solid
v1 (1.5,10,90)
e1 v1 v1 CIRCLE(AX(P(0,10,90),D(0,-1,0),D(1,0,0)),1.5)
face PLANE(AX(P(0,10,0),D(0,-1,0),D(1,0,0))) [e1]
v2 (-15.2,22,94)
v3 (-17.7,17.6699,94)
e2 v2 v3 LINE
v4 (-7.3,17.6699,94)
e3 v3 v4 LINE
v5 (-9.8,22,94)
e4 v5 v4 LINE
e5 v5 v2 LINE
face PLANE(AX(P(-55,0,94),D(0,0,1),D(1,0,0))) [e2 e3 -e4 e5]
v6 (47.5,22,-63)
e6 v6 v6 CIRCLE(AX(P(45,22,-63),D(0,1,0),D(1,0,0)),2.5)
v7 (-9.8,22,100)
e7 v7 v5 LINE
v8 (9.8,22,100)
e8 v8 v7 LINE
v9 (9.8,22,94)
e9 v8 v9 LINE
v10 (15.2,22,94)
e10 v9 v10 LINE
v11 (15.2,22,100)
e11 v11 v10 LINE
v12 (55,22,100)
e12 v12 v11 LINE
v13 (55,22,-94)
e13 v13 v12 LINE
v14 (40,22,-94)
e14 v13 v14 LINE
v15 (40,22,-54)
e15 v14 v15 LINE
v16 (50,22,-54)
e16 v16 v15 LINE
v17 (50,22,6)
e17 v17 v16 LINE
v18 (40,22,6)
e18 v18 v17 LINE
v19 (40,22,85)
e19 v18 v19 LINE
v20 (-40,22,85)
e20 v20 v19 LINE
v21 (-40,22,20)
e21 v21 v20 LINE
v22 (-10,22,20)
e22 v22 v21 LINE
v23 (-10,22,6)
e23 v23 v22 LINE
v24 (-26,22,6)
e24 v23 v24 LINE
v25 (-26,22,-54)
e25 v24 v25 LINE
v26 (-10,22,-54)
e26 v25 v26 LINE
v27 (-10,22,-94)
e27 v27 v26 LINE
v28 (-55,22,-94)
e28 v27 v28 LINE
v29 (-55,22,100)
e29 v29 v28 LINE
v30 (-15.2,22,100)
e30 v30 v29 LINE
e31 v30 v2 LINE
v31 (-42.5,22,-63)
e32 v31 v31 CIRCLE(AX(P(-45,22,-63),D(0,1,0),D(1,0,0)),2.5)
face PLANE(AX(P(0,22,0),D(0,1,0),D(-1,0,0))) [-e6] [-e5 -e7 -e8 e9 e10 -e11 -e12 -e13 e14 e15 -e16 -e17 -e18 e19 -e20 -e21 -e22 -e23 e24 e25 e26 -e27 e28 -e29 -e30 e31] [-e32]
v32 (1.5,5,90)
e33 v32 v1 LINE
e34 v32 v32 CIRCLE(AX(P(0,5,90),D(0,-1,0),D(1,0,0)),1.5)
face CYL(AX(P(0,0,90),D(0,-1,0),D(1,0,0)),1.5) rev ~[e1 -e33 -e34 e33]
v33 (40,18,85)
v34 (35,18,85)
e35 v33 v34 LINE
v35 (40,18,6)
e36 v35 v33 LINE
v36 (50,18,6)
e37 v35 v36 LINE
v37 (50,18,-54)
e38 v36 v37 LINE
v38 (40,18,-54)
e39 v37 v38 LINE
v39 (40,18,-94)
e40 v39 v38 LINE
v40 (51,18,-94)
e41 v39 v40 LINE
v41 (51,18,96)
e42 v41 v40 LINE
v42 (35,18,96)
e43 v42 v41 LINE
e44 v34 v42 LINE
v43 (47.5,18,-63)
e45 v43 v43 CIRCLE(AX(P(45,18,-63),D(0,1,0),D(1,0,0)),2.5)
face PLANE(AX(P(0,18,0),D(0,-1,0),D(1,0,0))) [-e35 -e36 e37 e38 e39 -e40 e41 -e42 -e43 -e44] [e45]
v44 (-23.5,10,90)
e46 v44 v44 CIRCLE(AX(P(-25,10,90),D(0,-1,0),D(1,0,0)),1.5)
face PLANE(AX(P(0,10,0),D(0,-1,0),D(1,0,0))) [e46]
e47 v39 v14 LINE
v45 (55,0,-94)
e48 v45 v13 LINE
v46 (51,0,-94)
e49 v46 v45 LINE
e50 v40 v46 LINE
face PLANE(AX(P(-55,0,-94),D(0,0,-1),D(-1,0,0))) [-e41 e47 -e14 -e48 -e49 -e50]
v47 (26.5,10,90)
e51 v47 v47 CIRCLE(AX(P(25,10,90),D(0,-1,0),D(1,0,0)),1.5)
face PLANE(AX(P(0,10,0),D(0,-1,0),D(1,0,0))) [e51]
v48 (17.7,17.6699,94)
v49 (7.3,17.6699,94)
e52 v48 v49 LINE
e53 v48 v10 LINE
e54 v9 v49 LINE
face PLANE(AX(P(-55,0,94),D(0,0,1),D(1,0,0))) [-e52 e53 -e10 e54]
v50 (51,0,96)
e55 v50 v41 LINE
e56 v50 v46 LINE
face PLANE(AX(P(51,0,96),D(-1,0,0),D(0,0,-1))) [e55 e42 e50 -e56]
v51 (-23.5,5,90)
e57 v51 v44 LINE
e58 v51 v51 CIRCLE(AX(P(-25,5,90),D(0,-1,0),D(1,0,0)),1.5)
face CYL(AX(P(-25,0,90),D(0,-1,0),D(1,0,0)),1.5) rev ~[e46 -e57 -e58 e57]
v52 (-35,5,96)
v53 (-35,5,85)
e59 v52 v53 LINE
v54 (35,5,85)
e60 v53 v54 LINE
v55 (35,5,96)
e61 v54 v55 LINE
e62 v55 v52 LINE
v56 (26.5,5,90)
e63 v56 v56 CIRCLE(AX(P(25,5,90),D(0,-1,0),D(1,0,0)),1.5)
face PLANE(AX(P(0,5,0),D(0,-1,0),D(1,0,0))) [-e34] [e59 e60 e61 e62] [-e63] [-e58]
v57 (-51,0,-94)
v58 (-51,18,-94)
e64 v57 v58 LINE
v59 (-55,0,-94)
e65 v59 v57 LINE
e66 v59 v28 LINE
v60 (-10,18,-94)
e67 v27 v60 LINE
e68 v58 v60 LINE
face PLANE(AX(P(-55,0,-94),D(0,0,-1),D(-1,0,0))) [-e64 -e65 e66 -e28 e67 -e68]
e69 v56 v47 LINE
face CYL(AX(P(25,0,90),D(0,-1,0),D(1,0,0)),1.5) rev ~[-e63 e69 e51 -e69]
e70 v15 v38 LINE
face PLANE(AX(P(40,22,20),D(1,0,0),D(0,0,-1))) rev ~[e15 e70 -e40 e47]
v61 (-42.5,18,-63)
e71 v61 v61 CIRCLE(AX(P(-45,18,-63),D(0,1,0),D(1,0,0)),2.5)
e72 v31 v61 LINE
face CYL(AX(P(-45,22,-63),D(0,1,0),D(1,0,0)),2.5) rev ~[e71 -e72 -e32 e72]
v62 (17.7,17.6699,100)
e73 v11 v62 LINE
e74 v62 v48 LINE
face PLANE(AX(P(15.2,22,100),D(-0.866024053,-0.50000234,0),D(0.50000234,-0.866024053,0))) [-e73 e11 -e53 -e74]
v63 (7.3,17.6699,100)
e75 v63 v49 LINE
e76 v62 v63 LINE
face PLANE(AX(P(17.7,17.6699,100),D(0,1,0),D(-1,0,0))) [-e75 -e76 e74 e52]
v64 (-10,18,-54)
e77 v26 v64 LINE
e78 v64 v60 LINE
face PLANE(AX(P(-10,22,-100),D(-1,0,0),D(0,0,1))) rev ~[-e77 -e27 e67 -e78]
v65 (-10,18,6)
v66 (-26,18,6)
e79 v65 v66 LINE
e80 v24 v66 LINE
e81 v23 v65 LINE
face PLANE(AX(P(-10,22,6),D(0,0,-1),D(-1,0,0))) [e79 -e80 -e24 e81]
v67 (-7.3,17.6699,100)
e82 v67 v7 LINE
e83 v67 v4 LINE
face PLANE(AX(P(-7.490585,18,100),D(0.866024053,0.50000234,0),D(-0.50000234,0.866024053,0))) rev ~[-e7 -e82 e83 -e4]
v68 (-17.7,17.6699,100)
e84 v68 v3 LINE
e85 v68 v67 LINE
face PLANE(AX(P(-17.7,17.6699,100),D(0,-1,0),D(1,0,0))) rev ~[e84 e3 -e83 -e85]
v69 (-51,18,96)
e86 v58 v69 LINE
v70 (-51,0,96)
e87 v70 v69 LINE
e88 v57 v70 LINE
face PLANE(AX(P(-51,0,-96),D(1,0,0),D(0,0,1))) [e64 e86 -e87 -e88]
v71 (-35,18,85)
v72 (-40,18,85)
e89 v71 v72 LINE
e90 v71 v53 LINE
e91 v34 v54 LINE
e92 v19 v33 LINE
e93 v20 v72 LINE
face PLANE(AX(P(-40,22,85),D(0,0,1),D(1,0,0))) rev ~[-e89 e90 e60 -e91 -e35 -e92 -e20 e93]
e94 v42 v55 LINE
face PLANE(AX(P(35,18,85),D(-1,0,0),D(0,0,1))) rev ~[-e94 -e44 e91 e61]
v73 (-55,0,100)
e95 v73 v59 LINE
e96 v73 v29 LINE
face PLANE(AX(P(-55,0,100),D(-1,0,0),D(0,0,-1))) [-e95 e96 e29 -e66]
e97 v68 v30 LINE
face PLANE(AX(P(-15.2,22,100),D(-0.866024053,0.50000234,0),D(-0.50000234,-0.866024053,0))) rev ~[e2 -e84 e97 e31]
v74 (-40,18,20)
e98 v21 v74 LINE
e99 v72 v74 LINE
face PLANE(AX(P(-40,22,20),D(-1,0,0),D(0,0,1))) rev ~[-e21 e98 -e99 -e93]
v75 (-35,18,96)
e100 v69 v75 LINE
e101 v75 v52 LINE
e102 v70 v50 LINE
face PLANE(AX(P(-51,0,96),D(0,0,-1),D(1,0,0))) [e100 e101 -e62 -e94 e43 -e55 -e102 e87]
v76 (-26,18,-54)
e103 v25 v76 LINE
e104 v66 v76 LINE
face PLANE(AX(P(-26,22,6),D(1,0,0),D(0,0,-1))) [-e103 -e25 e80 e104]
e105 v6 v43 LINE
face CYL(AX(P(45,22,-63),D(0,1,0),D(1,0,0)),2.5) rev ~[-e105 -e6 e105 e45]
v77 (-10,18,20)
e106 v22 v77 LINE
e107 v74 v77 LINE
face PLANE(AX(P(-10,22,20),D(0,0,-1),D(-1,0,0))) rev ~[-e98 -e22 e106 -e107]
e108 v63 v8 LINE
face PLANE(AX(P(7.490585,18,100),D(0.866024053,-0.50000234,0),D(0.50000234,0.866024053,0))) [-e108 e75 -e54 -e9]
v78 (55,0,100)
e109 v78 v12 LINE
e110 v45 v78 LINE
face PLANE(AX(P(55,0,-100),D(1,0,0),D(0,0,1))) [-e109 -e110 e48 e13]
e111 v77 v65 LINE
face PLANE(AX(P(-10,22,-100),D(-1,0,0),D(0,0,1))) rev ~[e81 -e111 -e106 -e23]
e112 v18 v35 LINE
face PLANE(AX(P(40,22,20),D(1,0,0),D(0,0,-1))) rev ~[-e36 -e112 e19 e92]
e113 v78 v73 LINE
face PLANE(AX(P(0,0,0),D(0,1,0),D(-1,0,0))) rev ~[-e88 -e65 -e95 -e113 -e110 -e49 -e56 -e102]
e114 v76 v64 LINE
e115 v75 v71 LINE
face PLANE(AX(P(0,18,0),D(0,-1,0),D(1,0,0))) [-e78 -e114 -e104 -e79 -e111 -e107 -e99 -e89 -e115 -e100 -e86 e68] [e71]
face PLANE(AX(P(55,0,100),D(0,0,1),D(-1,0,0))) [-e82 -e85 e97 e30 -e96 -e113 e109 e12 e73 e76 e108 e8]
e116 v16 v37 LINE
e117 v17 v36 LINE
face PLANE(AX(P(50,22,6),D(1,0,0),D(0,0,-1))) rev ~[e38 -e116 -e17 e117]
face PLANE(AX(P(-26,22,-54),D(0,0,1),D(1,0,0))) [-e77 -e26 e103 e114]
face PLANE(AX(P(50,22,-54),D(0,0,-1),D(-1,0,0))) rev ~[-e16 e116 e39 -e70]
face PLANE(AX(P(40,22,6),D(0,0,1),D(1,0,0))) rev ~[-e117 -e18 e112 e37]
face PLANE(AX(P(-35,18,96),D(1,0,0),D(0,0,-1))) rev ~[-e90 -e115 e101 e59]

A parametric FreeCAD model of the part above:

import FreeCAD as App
import Part
import Sketcher
from FreeCAD import Vector
Q = App.Units.Quantity

doc = App.newDocument("Part")
params = doc.addObject("Spreadsheet::Sheet", "Params")
for row, (alias, value) in enumerate([
    ("sketch1_width", "110 mm"),
    ("sketch1_height", "200 mm"),
    ("pad1_length", "22 mm"),
    ("sketch2_width", "102 mm"),
    ("sketch2_height", "192 mm"),
    ("pocket1_length", "18 mm"),
    ("sketch3_width", "50 mm"),
    ("sketch3_height", "120 mm"),
    ("pocket2_length", "22 mm"),
    ("sketch4_width", "80 mm"),
    ("sketch4_height", "65 mm"),
    ("pocket3_length", "13 mm"),
    ("sketch5_diameter", "5 mm"),
    ("pocket4_length", "10 mm"),
    ("sketch6_width", "70 mm"),
    ("sketch6_height", "11 mm"),
    ("pad2_length", "13 mm"),
    ("sketch7_length", "5 mm"),
    ("sketch7_width", "10.4 mm"),
    ("pocket5_length", "6 mm"),
    ("sketch8_diameter", "3 mm"),
    ("pocket6_length", "10 mm"),
    ("sketch9_width", "45 mm"),
    ("sketch9_width2", "15 mm"),
    ("sketch9_height", "22 mm"),
    ("pocket7_length", "6 mm"),
    ("sketch10_width", "16 mm"),
    ("sketch10_width2", "10 mm"),
    ("sketch10_height", "60 mm"),
    ("pocket8_length", "4 mm"),
], start=1):
    params.set(f"A{row}", alias)
    params.set(f"B{row}", "=" + value)
    params.setAlias(f"B{row}", alias)

body = doc.addObject("PartDesign::Body", "Body")

# Sketch on XZ plane
sketch1 = body.newObject("Sketcher::SketchObject", "Sketch")
sketch1.AttachmentSupport = (doc.getObject("XZ_Plane"), [""])
sketch1.MapMode = "FlatFace"
sketch1.addGeometry(Part.LineSegment(Vector(-55, 100, 0), Vector(55, 100, 0)), False)
sketch1.addGeometry(Part.LineSegment(Vector(55, 100, 0), Vector(55, -100, 0)), False)
sketch1.addGeometry(Part.LineSegment(Vector(55, -100, 0), Vector(-55, -100, 0)), False)
sketch1.addGeometry(Part.LineSegment(Vector(-55, -100, 0), Vector(-55, 100, 0)), False)
sketch1.addConstraint(Sketcher.Constraint("Coincident", 0, 2, 1, 1))
sketch1.addConstraint(Sketcher.Constraint("Coincident", 1, 2, 2, 1))
sketch1.addConstraint(Sketcher.Constraint("Coincident", 2, 2, 3, 1))
sketch1.addConstraint(Sketcher.Constraint("Coincident", 3, 2, 0, 1))
sketch1.addConstraint(Sketcher.Constraint("Horizontal", 0))
sketch1.addConstraint(Sketcher.Constraint("Vertical", 1))
sketch1.addConstraint(Sketcher.Constraint("Horizontal", 2))
sketch1.addConstraint(Sketcher.Constraint("Vertical", 3))
sketch1.addConstraint(Sketcher.Constraint("Symmetric", 0, 2, 2, 2, -1, 1))
sketch1.addConstraint(Sketcher.Constraint("DistanceX", 0, 1, 0, 2, Q("110 mm")))
sketch1.addConstraint(Sketcher.Constraint("DistanceY", 1, 2, 1, 1, Q("200 mm")))
sketch1.setExpression("Constraints[9]", "Params.sketch1_width")
sketch1.setExpression("Constraints[10]", "Params.sketch1_height")
pad1 = body.newObject("PartDesign::Pad", "Pad")
pad1.Profile = sketch1
pad1.setExpression("Length", "Params.pad1_length")
pad1.Reversed = True

# Sketch on XZ plane
sketch2 = body.newObject("Sketcher::SketchObject", "Sketch001")
sketch2.AttachmentSupport = (doc.getObject("XZ_Plane"), [""])
sketch2.MapMode = "FlatFace"
sketch2.addGeometry(Part.LineSegment(Vector(51, 96, 0), Vector(-51, 96, 0)), False)
sketch2.addGeometry(Part.LineSegment(Vector(-51, 96, 0), Vector(-51, -96, 0)), False)
sketch2.addGeometry(Part.LineSegment(Vector(-51, -96, 0), Vector(51, -96, 0)), False)
sketch2.addGeometry(Part.LineSegment(Vector(51, -96, 0), Vector(51, 96, 0)), False)
sketch2.addConstraint(Sketcher.Constraint("Coincident", 0, 2, 1, 1))
sketch2.addConstraint(Sketcher.Constraint("Coincident", 1, 2, 2, 1))
sketch2.addConstraint(Sketcher.Constraint("Coincident", 2, 2, 3, 1))
sketch2.addConstraint(Sketcher.Constraint("Coincident", 3, 2, 0, 1))
sketch2.addConstraint(Sketcher.Constraint("Horizontal", 0))
sketch2.addConstraint(Sketcher.Constraint("Vertical", 1))
sketch2.addConstraint(Sketcher.Constraint("Horizontal", 2))
sketch2.addConstraint(Sketcher.Constraint("Vertical", 3))
sketch2.addConstraint(Sketcher.Constraint("Symmetric", 0, 2, 2, 2, -1, 1))
sketch2.addConstraint(Sketcher.Constraint("DistanceX", 0, 2, 0, 1, Q("102 mm")))
sketch2.addConstraint(Sketcher.Constraint("DistanceY", 1, 2, 1, 1, Q("192 mm")))
sketch2.setExpression("Constraints[9]", "Params.sketch2_width")
sketch2.setExpression("Constraints[10]", "Params.sketch2_height")
pocket1 = body.newObject("PartDesign::Pocket", "Pocket")
pocket1.Profile = sketch2
pocket1.setExpression("Length", "Params.pocket1_length")

# Sketch on XZ plane
sketch3 = body.newObject("Sketcher::SketchObject", "Sketch002")
sketch3.AttachmentSupport = (doc.getObject("XZ_Plane"), [""])
sketch3.MapMode = "FlatFace"
sketch3.AttachmentOffset = App.Placement(Vector(0, 0, -22), App.Rotation())
sketch3.addGeometry(Part.LineSegment(Vector(40, 20, 0), Vector(40, -100, 0)), False)
sketch3.addGeometry(Part.LineSegment(Vector(40, -100, 0), Vector(-10, -100, 0)), False)
sketch3.addGeometry(Part.LineSegment(Vector(-10, -100, 0), Vector(-10, 20, 0)), False)
sketch3.addGeometry(Part.LineSegment(Vector(-10, 20, 0), Vector(40, 20, 0)), False)
sketch3.addConstraint(Sketcher.Constraint("Coincident", 0, 2, 1, 1))
sketch3.addConstraint(Sketcher.Constraint("Coincident", 1, 2, 2, 1))
sketch3.addConstraint(Sketcher.Constraint("Coincident", 2, 2, 3, 1))
sketch3.addConstraint(Sketcher.Constraint("Coincident", 3, 2, 0, 1))
sketch3.addConstraint(Sketcher.Constraint("Vertical", 0))
sketch3.addConstraint(Sketcher.Constraint("Horizontal", 1))
sketch3.addConstraint(Sketcher.Constraint("Vertical", 2))
sketch3.addConstraint(Sketcher.Constraint("Horizontal", 3))
sketch3.addConstraint(Sketcher.Constraint("DistanceX", 1, 2, 1, 1, Q("50 mm")))
sketch3.addConstraint(Sketcher.Constraint("DistanceY", 0, 2, 0, 1, Q("120 mm")))
sketch3.addConstraint(Sketcher.Constraint("DistanceX", -1, 1, 0, 2, Q("40 mm")))
sketch3.addConstraint(Sketcher.Constraint("DistanceY", 0, 2, -1, 1, Q("100 mm")))
sketch3.setExpression("Constraints[8]", "Params.sketch3_width")
sketch3.setExpression("Constraints[9]", "Params.sketch3_height")
pocket2 = body.newObject("PartDesign::Pocket", "Pocket001")
pocket2.Profile = sketch3
pocket2.setExpression("Length", "Params.pocket2_length")
pocket2.Reversed = True

# Sketch on XZ plane
sketch4 = body.newObject("Sketcher::SketchObject", "Sketch003")
sketch4.AttachmentSupport = (doc.getObject("XZ_Plane"), [""])
sketch4.MapMode = "FlatFace"
sketch4.AttachmentOffset = App.Placement(Vector(0, 0, -22), App.Rotation())
sketch4.addGeometry(Part.LineSegment(Vector(40, 85, 0), Vector(40, 20, 0)), False)
sketch4.addGeometry(Part.LineSegment(Vector(40, 20, 0), Vector(-40, 20, 0)), False)
sketch4.addGeometry(Part.LineSegment(Vector(-40, 20, 0), Vector(-40, 85, 0)), False)
sketch4.addGeometry(Part.LineSegment(Vector(-40, 85, 0), Vector(40, 85, 0)), False)
sketch4.addConstraint(Sketcher.Constraint("Coincident", 0, 2, 1, 1))
sketch4.addConstraint(Sketcher.Constraint("Coincident", 1, 2, 2, 1))
sketch4.addConstraint(Sketcher.Constraint("Coincident", 2, 2, 3, 1))
sketch4.addConstraint(Sketcher.Constraint("Coincident", 3, 2, 0, 1))
sketch4.addConstraint(Sketcher.Constraint("Vertical", 0))
sketch4.addConstraint(Sketcher.Constraint("Horizontal", 1))
sketch4.addConstraint(Sketcher.Constraint("Vertical", 2))
sketch4.addConstraint(Sketcher.Constraint("Horizontal", 3))
sketch4.addConstraint(Sketcher.Constraint("DistanceX", 1, 2, 1, 1, Q("80 mm")))
sketch4.addConstraint(Sketcher.Constraint("DistanceY", 0, 2, 0, 1, Q("65 mm")))
sketch4.addConstraint(Sketcher.Constraint("DistanceX", -1, 1, 0, 2, Q("40 mm")))
sketch4.addConstraint(Sketcher.Constraint("DistanceY", -1, 1, 0, 2, Q("20 mm")))
sketch4.setExpression("Constraints[8]", "Params.sketch4_width")
sketch4.setExpression("Constraints[9]", "Params.sketch4_height")
pocket3 = body.newObject("PartDesign::Pocket", "Pocket002")
pocket3.Profile = sketch4
pocket3.setExpression("Length", "Params.pocket3_length")
pocket3.Reversed = True

# Sketch on XZ plane
sketch5 = body.newObject("Sketcher::SketchObject", "Sketch004")
sketch5.AttachmentSupport = (doc.getObject("XZ_Plane"), [""])
sketch5.MapMode = "FlatFace"
sketch5.AttachmentOffset = App.Placement(Vector(0, 0, -22), App.Rotation())
sketch5.addGeometry(Part.Circle(Vector(-45, -63, 0), Vector(0, 0, 1), 2.5), False)
sketch5.addGeometry(Part.Circle(Vector(45, -63, 0), Vector(0, 0, 1), 2.5), False)
sketch5.addConstraint(Sketcher.Constraint("Equal", 0, 1))
sketch5.addConstraint(Sketcher.Constraint("Symmetric", 0, 3, 1, 3, -2))
sketch5.addConstraint(Sketcher.Constraint("Diameter", 0, Q("5 mm")))
sketch5.addConstraint(Sketcher.Constraint("DistanceX", 0, 3, 1, 3, Q("90 mm")))
sketch5.addConstraint(Sketcher.Constraint("DistanceY", 0, 3, -1, 1, Q("63 mm")))
sketch5.setExpression("Constraints[2]", "Params.sketch5_diameter")
pocket4 = body.newObject("PartDesign::Pocket", "Pocket003")
pocket4.Profile = sketch5
pocket4.setExpression("Length", "Params.pocket4_length")
pocket4.Reversed = True

# Sketch on XZ plane
sketch6 = body.newObject("Sketcher::SketchObject", "Sketch005")
sketch6.AttachmentSupport = (doc.getObject("XZ_Plane"), [""])
sketch6.MapMode = "FlatFace"
sketch6.AttachmentOffset = App.Placement(Vector(0, 0, -18), App.Rotation())
sketch6.addGeometry(Part.LineSegment(Vector(35, 85, 0), Vector(35, 96, 0)), False)
sketch6.addGeometry(Part.LineSegment(Vector(35, 96, 0), Vector(-35, 96, 0)), False)
sketch6.addGeometry(Part.LineSegment(Vector(-35, 96, 0), Vector(-35, 85, 0)), False)
sketch6.addGeometry(Part.LineSegment(Vector(-35, 85, 0), Vector(35, 85, 0)), False)
sketch6.addConstraint(Sketcher.Constraint("Coincident", 0, 2, 1, 1))
sketch6.addConstraint(Sketcher.Constraint("Coincident", 1, 2, 2, 1))
sketch6.addConstraint(Sketcher.Constraint("Coincident", 2, 2, 3, 1))
sketch6.addConstraint(Sketcher.Constraint("Coincident", 3, 2, 0, 1))
sketch6.addConstraint(Sketcher.Constraint("Vertical", 0))
sketch6.addConstraint(Sketcher.Constraint("Horizontal", 1))
sketch6.addConstraint(Sketcher.Constraint("Vertical", 2))
sketch6.addConstraint(Sketcher.Constraint("Horizontal", 3))
sketch6.addConstraint(Sketcher.Constraint("DistanceX", 1, 2, 1, 1, Q("70 mm")))
sketch6.addConstraint(Sketcher.Constraint("DistanceY", 0, 1, 0, 2, Q("11 mm")))
sketch6.addConstraint(Sketcher.Constraint("DistanceX", -1, 1, 0, 2, Q("35 mm")))
sketch6.addConstraint(Sketcher.Constraint("DistanceY", -1, 1, 0, 2, Q("96 mm")))
sketch6.setExpression("Constraints[8]", "Params.sketch6_width")
sketch6.setExpression("Constraints[9]", "Params.sketch6_height")
pad2 = body.newObject("PartDesign::Pad", "Pad001")
pad2.Profile = sketch6
pad2.setExpression("Length", "Params.pad2_length")

# Sketch on XY plane
sketch7 = body.newObject("Sketcher::SketchObject", "Sketch006")
sketch7.AttachmentSupport = (doc.getObject("XY_Plane"), [""])
sketch7.MapMode = "FlatFace"
sketch7.AttachmentOffset = App.Placement(Vector(0, 0, 100), App.Rotation())
sketch7.addGeometry(Part.LineSegment(Vector(-15.2, 22, 0), Vector(-17.7, 17.6699, 0)), False)
sketch7.addGeometry(Part.LineSegment(Vector(-17.7, 17.6699, 0), Vector(-7.3, 17.6699, 0)), False)
sketch7.addGeometry(Part.LineSegment(Vector(-7.3, 17.6699, 0), Vector(-9.8, 22, 0)), False)
sketch7.addGeometry(Part.LineSegment(Vector(-9.8, 22, 0), Vector(-15.2, 22, 0)), False)
sketch7.addGeometry(Part.LineSegment(Vector(15.2, 22, 0), Vector(9.8, 22, 0)), False)
sketch7.addGeometry(Part.LineSegment(Vector(9.8, 22, 0), Vector(7.3, 17.6699, 0)), False)
sketch7.addGeometry(Part.LineSegment(Vector(7.3, 17.6699, 0), Vector(17.7, 17.6699, 0)), False)
sketch7.addGeometry(Part.LineSegment(Vector(17.7, 17.6699, 0), Vector(15.2, 22, 0)), False)
sketch7.addConstraint(Sketcher.Constraint("Coincident", 0, 2, 1, 1))
sketch7.addConstraint(Sketcher.Constraint("Coincident", 1, 2, 2, 1))
sketch7.addConstraint(Sketcher.Constraint("Coincident", 2, 2, 3, 1))
sketch7.addConstraint(Sketcher.Constraint("Coincident", 3, 2, 0, 1))
sketch7.addConstraint(Sketcher.Constraint("Coincident", 4, 2, 5, 1))
sketch7.addConstraint(Sketcher.Constraint("Coincident", 5, 2, 6, 1))
sketch7.addConstraint(Sketcher.Constraint("Coincident", 6, 2, 7, 1))
sketch7.addConstraint(Sketcher.Constraint("Coincident", 7, 2, 4, 1))
sketch7.addConstraint(Sketcher.Constraint("Horizontal", 1))
sketch7.addConstraint(Sketcher.Constraint("Horizontal", 3))
sketch7.addConstraint(Sketcher.Constraint("Horizontal", 4))
sketch7.addConstraint(Sketcher.Constraint("Horizontal", 6))
sketch7.addConstraint(Sketcher.Constraint("Symmetric", 2, 2, 4, 2, -2))
sketch7.addConstraint(Sketcher.Constraint("Symmetric", 1, 2, 5, 2, -2))
sketch7.addConstraint(Sketcher.Constraint("Parallel", 0, 5))
sketch7.addConstraint(Sketcher.Constraint("Parallel", 2, 7))
sketch7.addConstraint(Sketcher.Constraint("Equal", 3, 4))
sketch7.addConstraint(Sketcher.Constraint("Angle", 0, Q("-120.0002 deg")))
sketch7.addConstraint(Sketcher.Constraint("Distance", 0, Q("5 mm")))
sketch7.addConstraint(Sketcher.Constraint("DistanceX", 1, 1, 1, 2, Q("10.4 mm")))
sketch7.addConstraint(Sketcher.Constraint("DistanceY", -1, 1, 2, 2, Q("22 mm")))
sketch7.addConstraint(Sketcher.Constraint("DistanceX", 3, 2, 4, 2, Q("25 mm")))
sketch7.setExpression("Constraints[18]", "Params.sketch7_length")
sketch7.setExpression("Constraints[19]", "Params.sketch7_width")
pocket5 = body.newObject("PartDesign::Pocket", "Pocket004")
pocket5.Profile = sketch7
pocket5.setExpression("Length", "Params.pocket5_length")

# Sketch on XZ plane
sketch8 = body.newObject("Sketcher::SketchObject", "Sketch007")
sketch8.AttachmentSupport = (doc.getObject("XZ_Plane"), [""])
sketch8.MapMode = "FlatFace"
sketch8.addGeometry(Part.Circle(Vector(25, 90, 0), Vector(0, 0, 1), 1.5), False)
sketch8.addGeometry(Part.Circle(Vector(-25, 90, 0), Vector(0, 0, 1), 1.5), False)
sketch8.addGeometry(Part.Circle(Vector(0, 90, 0), Vector(0, 0, 1), 1.5), False)
sketch8.addConstraint(Sketcher.Constraint("Equal", 0, 1))
sketch8.addConstraint(Sketcher.Constraint("Equal", 1, 2))
sketch8.addConstraint(Sketcher.Constraint("Symmetric", 0, 3, 1, 3, -2))
sketch8.addConstraint(Sketcher.Constraint("PointOnObject", 2, 3, -2))
sketch8.addConstraint(Sketcher.Constraint("Horizontal", 1, 3, 2, 3))
sketch8.addConstraint(Sketcher.Constraint("Diameter", 0, Q("3 mm")))
sketch8.addConstraint(Sketcher.Constraint("DistanceX", -1, 1, 0, 3, Q("25 mm")))
sketch8.addConstraint(Sketcher.Constraint("DistanceY", -1, 1, 0, 3, Q("90 mm")))
sketch8.setExpression("Constraints[5]", "Params.sketch8_diameter")
pocket6 = body.newObject("PartDesign::Pocket", "Pocket005")
pocket6.Profile = sketch8
pocket6.setExpression("Length", "Params.pocket6_length")

# Sketch on XY plane
sketch9 = body.newObject("Sketcher::SketchObject", "Sketch008")
sketch9.AttachmentSupport = (doc.getObject("XY_Plane"), [""])
sketch9.MapMode = "FlatFace"
sketch9.AttachmentOffset = App.Placement(Vector(0, 0, -100), App.Rotation())
sketch9.addGeometry(Part.LineSegment(Vector(-55, 22, 0), Vector(-10, 22, 0)), False)
sketch9.addGeometry(Part.LineSegment(Vector(-10, 22, 0), Vector(-10, 0, 0)), False)
sketch9.addGeometry(Part.LineSegment(Vector(-10, 0, 0), Vector(-55, 0, 0)), False)
sketch9.addGeometry(Part.LineSegment(Vector(-55, 0, 0), Vector(-55, 22, 0)), False)
sketch9.addGeometry(Part.LineSegment(Vector(40, 0, 0), Vector(40, 22, 0)), False)
sketch9.addGeometry(Part.LineSegment(Vector(40, 22, 0), Vector(55, 22, 0)), False)
sketch9.addGeometry(Part.LineSegment(Vector(55, 22, 0), Vector(55, 0, 0)), False)
sketch9.addGeometry(Part.LineSegment(Vector(55, 0, 0), Vector(40, 0, 0)), False)
sketch9.addConstraint(Sketcher.Constraint("Coincident", 0, 2, 1, 1))
sketch9.addConstraint(Sketcher.Constraint("Coincident", 1, 2, 2, 1))
sketch9.addConstraint(Sketcher.Constraint("Coincident", 2, 2, 3, 1))
sketch9.addConstraint(Sketcher.Constraint("Coincident", 3, 2, 0, 1))
sketch9.addConstraint(Sketcher.Constraint("Coincident", 4, 2, 5, 1))
sketch9.addConstraint(Sketcher.Constraint("Coincident", 5, 2, 6, 1))
sketch9.addConstraint(Sketcher.Constraint("Coincident", 6, 2, 7, 1))
sketch9.addConstraint(Sketcher.Constraint("Coincident", 7, 2, 4, 1))
sketch9.addConstraint(Sketcher.Constraint("Horizontal", 0))
sketch9.addConstraint(Sketcher.Constraint("Vertical", 1))
sketch9.addConstraint(Sketcher.Constraint("Horizontal", 2))
sketch9.addConstraint(Sketcher.Constraint("Vertical", 3))
sketch9.addConstraint(Sketcher.Constraint("Vertical", 4))
sketch9.addConstraint(Sketcher.Constraint("Horizontal", 5))
sketch9.addConstraint(Sketcher.Constraint("Vertical", 6))
sketch9.addConstraint(Sketcher.Constraint("Horizontal", 7))
sketch9.addConstraint(Sketcher.Constraint("Symmetric", 2, 2, 6, 2, -1, 1))
sketch9.addConstraint(Sketcher.Constraint("PointOnObject", 1, 2, -1))
sketch9.addConstraint(Sketcher.Constraint("Horizontal", 3, 2, 4, 2))
sketch9.addConstraint(Sketcher.Constraint("DistanceX", 0, 1, 0, 2, Q("45 mm")))
sketch9.addConstraint(Sketcher.Constraint("DistanceX", 5, 1, 5, 2, Q("15 mm")))
sketch9.addConstraint(Sketcher.Constraint("DistanceY", 1, 2, 1, 1, Q("22 mm")))
sketch9.addConstraint(Sketcher.Constraint("DistanceX", 0, 2, -1, 1, Q("10 mm")))
sketch9.setExpression("Constraints[19]", "Params.sketch9_width")
sketch9.setExpression("Constraints[20]", "Params.sketch9_width2")
sketch9.setExpression("Constraints[21]", "Params.sketch9_height")
pocket7 = body.newObject("PartDesign::Pocket", "Pocket006")
pocket7.Profile = sketch9
pocket7.setExpression("Length", "Params.pocket7_length")
pocket7.Reversed = True

# Sketch on XZ plane
sketch10 = body.newObject("Sketcher::SketchObject", "Sketch009")
sketch10.AttachmentSupport = (doc.getObject("XZ_Plane"), [""])
sketch10.MapMode = "FlatFace"
sketch10.AttachmentOffset = App.Placement(Vector(0, 0, -22), App.Rotation())
sketch10.addGeometry(Part.LineSegment(Vector(-26, 6, 0), Vector(-10, 6, 0)), False)
sketch10.addGeometry(Part.LineSegment(Vector(-10, 6, 0), Vector(-10, -54, 0)), False)
sketch10.addGeometry(Part.LineSegment(Vector(-10, -54, 0), Vector(-26, -54, 0)), False)
sketch10.addGeometry(Part.LineSegment(Vector(-26, -54, 0), Vector(-26, 6, 0)), False)
sketch10.addGeometry(Part.LineSegment(Vector(40, -54, 0), Vector(40, 6, 0)), False)
sketch10.addGeometry(Part.LineSegment(Vector(40, 6, 0), Vector(50, 6, 0)), False)
sketch10.addGeometry(Part.LineSegment(Vector(50, 6, 0), Vector(50, -54, 0)), False)
sketch10.addGeometry(Part.LineSegment(Vector(50, -54, 0), Vector(40, -54, 0)), False)
sketch10.addConstraint(Sketcher.Constraint("Coincident", 0, 2, 1, 1))
sketch10.addConstraint(Sketcher.Constraint("Coincident", 1, 2, 2, 1))
sketch10.addConstraint(Sketcher.Constraint("Coincident", 2, 2, 3, 1))
sketch10.addConstraint(Sketcher.Constraint("Coincident", 3, 2, 0, 1))
sketch10.addConstraint(Sketcher.Constraint("Coincident", 4, 2, 5, 1))
sketch10.addConstraint(Sketcher.Constraint("Coincident", 5, 2, 6, 1))
sketch10.addConstraint(Sketcher.Constraint("Coincident", 6, 2, 7, 1))
sketch10.addConstraint(Sketcher.Constraint("Coincident", 7, 2, 4, 1))
sketch10.addConstraint(Sketcher.Constraint("Horizontal", 0))
sketch10.addConstraint(Sketcher.Constraint("Vertical", 1))
sketch10.addConstraint(Sketcher.Constraint("Horizontal", 2))
sketch10.addConstraint(Sketcher.Constraint("Vertical", 3))
sketch10.addConstraint(Sketcher.Constraint("Vertical", 4))
sketch10.addConstraint(Sketcher.Constraint("Horizontal", 5))
sketch10.addConstraint(Sketcher.Constraint("Vertical", 6))
sketch10.addConstraint(Sketcher.Constraint("Horizontal", 7))
sketch10.addConstraint(Sketcher.Constraint("Horizontal", 3, 2, 4, 2))
sketch10.addConstraint(Sketcher.Constraint("Horizontal", 2, 2, 6, 2))
sketch10.addConstraint(Sketcher.Constraint("DistanceX", 0, 1, 0, 2, Q("16 mm")))
sketch10.addConstraint(Sketcher.Constraint("DistanceX", 5, 1, 5, 2, Q("10 mm")))
sketch10.addConstraint(Sketcher.Constraint("DistanceY", 1, 2, 1, 1, Q("60 mm")))
sketch10.addConstraint(Sketcher.Constraint("DistanceX", 0, 2, -1, 1, Q("10 mm")))
sketch10.addConstraint(Sketcher.Constraint("DistanceX", 0, 2, 5, 2, Q("60 mm")))
sketch10.addConstraint(Sketcher.Constraint("DistanceY", -1, 1, 0, 2, Q("6 mm")))
sketch10.setExpression("Constraints[18]", "Params.sketch10_width")
sketch10.setExpression("Constraints[19]", "Params.sketch10_width2")
sketch10.setExpression("Constraints[20]", "Params.sketch10_height")
pocket8 = body.newObject("PartDesign::Pocket", "Pocket007")
pocket8.Profile = sketch10
pocket8.setExpression("Length", "Params.pocket8_length")
pocket8.Reversed = True

doc.recompute()
